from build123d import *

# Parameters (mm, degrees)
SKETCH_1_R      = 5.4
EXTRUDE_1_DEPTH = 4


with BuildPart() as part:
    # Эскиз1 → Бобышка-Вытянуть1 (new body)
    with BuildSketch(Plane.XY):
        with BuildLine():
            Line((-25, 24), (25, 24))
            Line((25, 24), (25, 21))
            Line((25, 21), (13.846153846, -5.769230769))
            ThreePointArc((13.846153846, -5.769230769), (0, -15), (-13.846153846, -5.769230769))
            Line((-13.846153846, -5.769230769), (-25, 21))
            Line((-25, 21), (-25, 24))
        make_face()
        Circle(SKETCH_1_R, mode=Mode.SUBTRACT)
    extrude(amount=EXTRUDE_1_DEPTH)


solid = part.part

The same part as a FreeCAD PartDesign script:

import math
import FreeCAD as App
import Part
import Sketcher
from FreeCAD import Vector
Q = App.Units.Quantity

doc = App.newDocument("Part")
body = doc.addObject("PartDesign::Body", "Body")

# Sketch on XY plane
sketch1 = body.newObject("Sketcher::SketchObject", "Sketch")
sketch1.AttachmentSupport = (doc.getObject("XY_Plane"), [""])
sketch1.MapMode = "FlatFace"
sketch1.addGeometry([
    Part.LineSegment(Vector(25, 24, 0), Vector(-25, 24, 0)),  # 0
    Part.LineSegment(Vector(-25, 24, 0), Vector(-25, 21, 0)),  # 1
    Part.LineSegment(Vector(-25, 21, 0), Vector(-13.8, -5.8, 0)),  # 2
    Part.ArcOfCircle(Part.Circle(Vector(0, 0, 0), Vector(0, 0, 1), 15), math.radians(-157), math.radians(-23)),  # 3
    Part.LineSegment(Vector(13.8, -5.8, 0), Vector(25, 21, 0)),  # 4
    Part.LineSegment(Vector(25, 21, 0), Vector(25, 24, 0)),  # 5
    Part.Circle(Vector(0, 0, 0), Vector(0, 0, 1), 5.4),  # 6
], False)
sketch1.addConstraint([
    Sketcher.Constraint("Coincident", 0, 2, 1, 1),
    Sketcher.Constraint("Coincident", 1, 2, 2, 1),
    Sketcher.Constraint("Tangent", 2, 2, 3, 1),
    Sketcher.Constraint("Tangent", 3, 2, 4, 1),
    Sketcher.Constraint("Coincident", 4, 2, 5, 1),
    Sketcher.Constraint("Coincident", 5, 2, 0, 1),
    Sketcher.Constraint("Horizontal", 0),
    Sketcher.Constraint("Vertical", 1),
    Sketcher.Constraint("Vertical", 5),
    Sketcher.Constraint("Coincident", 3, 3, -1, 1),
    Sketcher.Constraint("Coincident", 6, 3, -1, 1),
    Sketcher.Constraint("Symmetric", 1, 2, 4, 2, -2),
    Sketcher.Constraint("Radius", 3, Q("15 mm")),
    Sketcher.Constraint("Diameter", 6, Q("10.8 mm")),
    Sketcher.Constraint("DistanceX", 0, 2, 0, 1, Q("50 mm")),
    Sketcher.Constraint("DistanceY", 1, 2, 1, 1, Q("3 mm")),
    Sketcher.Constraint("Distance", 2, Q("29 mm")),
])
pad1 = body.newObject("PartDesign::Pad", "Pad")
pad1.Profile = sketch1
pad1.Length = 4

doc.recompute()
